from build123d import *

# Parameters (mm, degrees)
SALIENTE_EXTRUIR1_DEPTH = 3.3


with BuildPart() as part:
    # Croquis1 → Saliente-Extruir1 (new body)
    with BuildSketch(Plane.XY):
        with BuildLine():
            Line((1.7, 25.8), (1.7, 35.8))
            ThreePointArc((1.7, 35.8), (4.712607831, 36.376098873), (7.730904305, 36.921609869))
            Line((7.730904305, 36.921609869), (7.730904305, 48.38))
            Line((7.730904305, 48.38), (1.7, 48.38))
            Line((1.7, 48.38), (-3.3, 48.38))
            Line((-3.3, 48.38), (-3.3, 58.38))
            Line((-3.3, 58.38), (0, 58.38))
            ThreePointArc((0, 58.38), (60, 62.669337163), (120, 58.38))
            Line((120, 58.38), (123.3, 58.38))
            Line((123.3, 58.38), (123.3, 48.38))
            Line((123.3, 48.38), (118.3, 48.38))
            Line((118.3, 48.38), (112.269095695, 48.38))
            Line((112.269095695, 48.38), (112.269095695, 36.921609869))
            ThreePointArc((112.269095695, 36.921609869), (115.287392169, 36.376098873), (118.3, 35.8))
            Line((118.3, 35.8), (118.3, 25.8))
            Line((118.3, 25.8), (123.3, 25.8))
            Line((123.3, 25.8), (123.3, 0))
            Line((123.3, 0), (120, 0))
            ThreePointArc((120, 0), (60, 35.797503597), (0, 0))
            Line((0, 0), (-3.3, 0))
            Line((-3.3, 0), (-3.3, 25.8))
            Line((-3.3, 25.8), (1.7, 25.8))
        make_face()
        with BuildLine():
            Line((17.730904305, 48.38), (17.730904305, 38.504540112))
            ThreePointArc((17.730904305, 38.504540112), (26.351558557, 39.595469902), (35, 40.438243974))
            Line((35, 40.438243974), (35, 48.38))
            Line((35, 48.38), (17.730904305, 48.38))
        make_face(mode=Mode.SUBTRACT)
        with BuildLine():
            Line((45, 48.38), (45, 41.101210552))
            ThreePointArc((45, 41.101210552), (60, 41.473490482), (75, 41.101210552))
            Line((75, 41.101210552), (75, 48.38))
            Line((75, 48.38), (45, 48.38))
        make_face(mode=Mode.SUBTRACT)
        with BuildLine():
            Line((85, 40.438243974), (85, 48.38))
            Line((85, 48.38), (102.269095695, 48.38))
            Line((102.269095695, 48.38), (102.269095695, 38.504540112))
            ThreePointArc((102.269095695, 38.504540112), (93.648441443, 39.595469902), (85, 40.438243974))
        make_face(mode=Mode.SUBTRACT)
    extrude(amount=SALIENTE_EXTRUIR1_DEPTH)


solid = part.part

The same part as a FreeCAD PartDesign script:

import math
import FreeCAD as App
import Part
import Sketcher
from FreeCAD import Vector
Q = App.Units.Quantity

doc = App.newDocument("Part")
body = doc.addObject("PartDesign::Body", "Body")

# Sketch on XY plane
sketch1 = body.newObject("Sketcher::SketchObject", "Sketch")
sketch1.AttachmentSupport = (doc.getObject("XY_Plane"), [""])
sketch1.MapMode = "FlatFace"
sketch1.addGeometry([
    Part.LineSegment(Vector(1.7, 35.8, 0), Vector(1.7, 25.8, 0)),  # 0
    Part.LineSegment(Vector(1.7, 25.8, 0), Vector(-3.3, 25.8, 0)),  # 1
    Part.LineSegment(Vector(-3.3, 25.8, 0), Vector(-3.3, 0, 0)),  # 2
    Part.LineSegment(Vector(-3.3, 0, 0), Vector(0, 0, 0)),  # 3
    Part.ArcOfCircle(Part.Circle(Vector(60, -32.4, 0), Vector(0, 0, 1), 68.2), math.radians(28), math.radians(152)),  # 4
    Part.LineSegment(Vector(120, 0, 0), Vector(123.3, 0, 0)),  # 5
    Part.LineSegment(Vector(123.3, 0, 0), Vector(123.3, 25.8, 0)),  # 6
    Part.LineSegment(Vector(123.3, 25.8, 0), Vector(118.3, 25.8, 0)),  # 7
    Part.LineSegment(Vector(118.3, 25.8, 0), Vector(118.3, 35.8, 0)),  # 8
    Part.ArcOfCircle(Part.Circle(Vector(60, -260.9, 0), Vector(0, 0, 1), 302.4), math.radians(78.88), math.radians(80.05)),  # 9
    Part.LineSegment(Vector(112.3, 36.9, 0), Vector(112.3, 48.4, 0)),  # 10
    Part.LineSegment(Vector(112.3, 48.4, 0), Vector(123.3, 48.4, 0)),  # 11
    Part.LineSegment(Vector(123.3, 48.4, 0), Vector(123.3, 58.4, 0)),  # 12
    Part.LineSegment(Vector(123.3, 58.4, 0), Vector(120, 58.4, 0)),  # 13
    Part.ArcOfCircle(Part.Circle(Vector(60, -359.1, 0), Vector(0, 0, 1), 421.8), math.radians(81.82), math.radians(98.18)),  # 14
    Part.LineSegment(Vector(0, 58.4, 0), Vector(-3.3, 58.4, 0)),  # 15
    Part.LineSegment(Vector(-3.3, 58.4, 0), Vector(-3.3, 48.4, 0)),  # 16
    Part.LineSegment(Vector(-3.3, 48.4, 0), Vector(7.7, 48.4, 0)),  # 17
    Part.LineSegment(Vector(7.7, 48.4, 0), Vector(7.7, 36.9, 0)),  # 18
    Part.ArcOfCircle(Part.Circle(Vector(60, -260.9, 0), Vector(0, 0, 1), 302.4), math.radians(99.95), math.radians(101.12)),  # 19
    Part.LineSegment(Vector(85, 40.4, 0), Vector(85, 48.4, 0)),  # 20
    Part.LineSegment(Vector(85, 48.4, 0), Vector(102.3, 48.4, 0)),  # 21
    Part.LineSegment(Vector(102.3, 48.4, 0), Vector(102.3, 38.5, 0)),  # 22
    Part.ArcOfCircle(Part.Circle(Vector(60, -260.9, 0), Vector(0, 0, 1), 302.4), math.radians(81.96), math.radians(85.26)),  # 23
    Part.LineSegment(Vector(45, 48.4, 0), Vector(75, 48.4, 0)),  # 24
    Part.LineSegment(Vector(75, 48.4, 0), Vector(75, 41.1, 0)),  # 25
    Part.ArcOfCircle(Part.Circle(Vector(60, -260.9, 0), Vector(0, 0, 1), 302.4), math.radians(87.16), math.radians(92.84)),  # 26
    Part.LineSegment(Vector(45, 41.1, 0), Vector(45, 48.4, 0)),  # 27
    Part.LineSegment(Vector(17.7, 48.4, 0), Vector(35, 48.4, 0)),  # 28
    Part.LineSegment(Vector(35, 48.4, 0), Vector(35, 40.4, 0)),  # 29
    Part.ArcOfCircle(Part.Circle(Vector(60, -260.9, 0), Vector(0, 0, 1), 302.4), math.radians(94.74), math.radians(98.04)),  # 30
    Part.LineSegment(Vector(17.7, 38.5, 0), Vector(17.7, 48.4, 0)),  # 31
], False)
sketch1.addConstraint([
    Sketcher.Constraint("Coincident", 0, 2, 1, 1),
    Sketcher.Constraint("Coincident", 1, 2, 2, 1),
    Sketcher.Constraint("Coincident", 2, 2, 3, 1),
    Sketcher.Constraint("Coincident", 3, 2, 4, 2),
    Sketcher.Constraint("Coincident", 4, 1, 5, 1),
    Sketcher.Constraint("Coincident", 5, 2, 6, 1),
    Sketcher.Constraint("Coincident", 6, 2, 7, 1),
    Sketcher.Constraint("Coincident", 7, 2, 8, 1),
    Sketcher.Constraint("Coincident", 8, 2, 9, 1),
    Sketcher.Constraint("Coincident", 9, 2, 10, 1),
    Sketcher.Constraint("Coincident", 10, 2, 11, 1),
    Sketcher.Constraint("Coincident", 11, 2, 12, 1),
    Sketcher.Constraint("Coincident", 12, 2, 13, 1),
    Sketcher.Constraint("Coincident", 13, 2, 14, 1),
    Sketcher.Constraint("Coincident", 14, 2, 15, 1),
    Sketcher.Constraint("Coincident", 15, 2, 16, 1),
    Sketcher.Constraint("Coincident", 16, 2, 17, 1),
    Sketcher.Constraint("Coincident", 17, 2, 18, 1),
    Sketcher.Constraint("Coincident", 18, 2, 19, 1),
    Sketcher.Constraint("Coincident", 19, 2, 0, 1),
    Sketcher.Constraint("Coincident", 20, 2, 21, 1),
    Sketcher.Constraint("Coincident", 21, 2, 22, 1),
    Sketcher.Constraint("Coincident", 22, 2, 23, 1),
    Sketcher.Constraint("Coincident", 23, 2, 20, 1),
    Sketcher.Constraint("Coincident", 24, 2, 25, 1),
    Sketcher.Constraint("Coincident", 25, 2, 26, 1),
    Sketcher.Constraint("Coincident", 26, 2, 27, 1),
    Sketcher.Constraint("Coincident", 27, 2, 24, 1),
    Sketcher.Constraint("Coincident", 28, 2, 29, 1),
    Sketcher.Constraint("Coincident", 29, 2, 30, 1),
    Sketcher.Constraint("Coincident", 30, 2, 31, 1),
    Sketcher.Constraint("Coincident", 31, 2, 28, 1),
    Sketcher.Constraint("Vertical", 0),
    Sketcher.Constraint("Horizontal", 1),
    Sketcher.Constraint("Vertical", 2),
    Sketcher.Constraint("Horizontal", 3),
    Sketcher.Constraint("Horizontal", 5),
    Sketcher.Constraint("Vertical", 6),
    Sketcher.Constraint("Horizontal", 7),
    Sketcher.Constraint("Vertical", 8),
    Sketcher.Constraint("Vertical", 10),
    Sketcher.Constraint("Horizontal", 11),
    Sketcher.Constraint("Vertical", 12),
    Sketcher.Constraint("Horizontal", 13),
    Sketcher.Constraint("Horizontal", 15),
    Sketcher.Constraint("Vertical", 16),
    Sketcher.Constraint("Horizontal", 17),
    Sketcher.Constraint("Vertical", 18),
    Sketcher.Constraint("Vertical", 20),
    Sketcher.Constraint("Horizontal", 21),
    Sketcher.Constraint("Vertical", 22),
    Sketcher.Constraint("Horizontal", 24),
    Sketcher.Constraint("Vertical", 25),
    Sketcher.Constraint("Vertical", 27),
    Sketcher.Constraint("Horizontal", 28),
    Sketcher.Constraint("Vertical", 29),
    Sketcher.Constraint("Vertical", 31),
    Sketcher.Constraint("Coincident", 3, 2, -1, 1),
    Sketcher.Constraint("Coincident", 19, 3, 9, 3),
    Sketcher.Constraint("Coincident", 23, 3, 9, 3),
    Sketcher.Constraint("Coincident", 26, 3, 9, 3),
    Sketcher.Constraint("Coincident", 30, 3, 9, 3),
    Sketcher.Constraint("Equal", 9, 19),
    Sketcher.Constraint("Equal", 19, 23),
    Sketcher.Constraint("Equal", 23, 26),
    Sketcher.Constraint("Equal", 26, 30),
    Sketcher.Constraint("PointOnObject", 4, 1, -1),
    Sketcher.Constraint("PointOnObject", 14, 2, -2),
    Sketcher.Constraint("Horizontal", 1, 2, 6, 2),
    Sketcher.Constraint("Horizontal", 13, 2, 14, 2),
    Sketcher.Constraint("Horizontal", 11, 2, 16, 2),
    Sketcher.Constraint("Horizontal", 9, 2, 18, 2),
    Sketcher.Constraint("Horizontal", 8, 2, 19, 2),
    Sketcher.Constraint("Horizontal", 17, 2, 20, 2),
    Sketcher.Constraint("Horizontal", 21, 2, 24, 2),
    Sketcher.Constraint("Horizontal", 25, 2, 26, 2),
    Sketcher.Constraint("Horizontal", 27, 2, 28, 2),
    Sketcher.Constraint("Horizontal", 23, 2, 29, 2),
    Sketcher.Constraint("Horizontal", 22, 2, 30, 2),
    Sketcher.Constraint("Vertical", 4, 3, 9, 3),
    Sketcher.Constraint("Vertical", 9, 3, 14, 3),
    Sketcher.Constraint("Vertical", 6, 2, 11, 2),
    Sketcher.Constraint("Vertical", 2, 2, 15, 2),
    Sketcher.Constraint("Equal", 3, 5),
    Sketcher.Constraint("Equal", 8, 12),
    Sketcher.Constraint("DistanceX", 1, 2, 1, 1, Q("5 mm")),
    Sketcher.Constraint("DistanceX", 24, 1, 24, 2, Q("30 mm")),
    Sketcher.Constraint("DistanceY", 0, 2, 0, 1, Q("10 mm")),
    Sketcher.Constraint("DistanceX", 3, 1, 3, 2, Q("3.3 mm")),
    Sketcher.Constraint("DistanceY", 2, 2, 2, 1, Q("25.8 mm")),
    Sketcher.Constraint("DistanceX", -1, 1, 4, 3, Q("60 mm")),
    Sketcher.Constraint("DistanceX", -1, 1, 20, 2, Q("85 mm")),
    Sketcher.Constraint("DistanceX", 21, 2, 10, 2, Q("10 mm")),
    Sketcher.Constraint("DistanceY", -1, 1, 10, 2, Q("48.38 mm")),
    Sketcher.Constraint("Radius", 4, Q("68.181588 mm")),
    Sketcher.Constraint("Radius", 9, Q("302.378096 mm")),
    Sketcher.Constraint("Radius", 14, Q("421.789926 mm")),
    Sketcher.Constraint("DistanceY", 10, 1, 10, 2, Q("11.45839 mm")),
])
pad1 = body.newObject("PartDesign::Pad", "Pad")
pad1.Profile = sketch1
pad1.Length = 3.3

doc.recompute()
